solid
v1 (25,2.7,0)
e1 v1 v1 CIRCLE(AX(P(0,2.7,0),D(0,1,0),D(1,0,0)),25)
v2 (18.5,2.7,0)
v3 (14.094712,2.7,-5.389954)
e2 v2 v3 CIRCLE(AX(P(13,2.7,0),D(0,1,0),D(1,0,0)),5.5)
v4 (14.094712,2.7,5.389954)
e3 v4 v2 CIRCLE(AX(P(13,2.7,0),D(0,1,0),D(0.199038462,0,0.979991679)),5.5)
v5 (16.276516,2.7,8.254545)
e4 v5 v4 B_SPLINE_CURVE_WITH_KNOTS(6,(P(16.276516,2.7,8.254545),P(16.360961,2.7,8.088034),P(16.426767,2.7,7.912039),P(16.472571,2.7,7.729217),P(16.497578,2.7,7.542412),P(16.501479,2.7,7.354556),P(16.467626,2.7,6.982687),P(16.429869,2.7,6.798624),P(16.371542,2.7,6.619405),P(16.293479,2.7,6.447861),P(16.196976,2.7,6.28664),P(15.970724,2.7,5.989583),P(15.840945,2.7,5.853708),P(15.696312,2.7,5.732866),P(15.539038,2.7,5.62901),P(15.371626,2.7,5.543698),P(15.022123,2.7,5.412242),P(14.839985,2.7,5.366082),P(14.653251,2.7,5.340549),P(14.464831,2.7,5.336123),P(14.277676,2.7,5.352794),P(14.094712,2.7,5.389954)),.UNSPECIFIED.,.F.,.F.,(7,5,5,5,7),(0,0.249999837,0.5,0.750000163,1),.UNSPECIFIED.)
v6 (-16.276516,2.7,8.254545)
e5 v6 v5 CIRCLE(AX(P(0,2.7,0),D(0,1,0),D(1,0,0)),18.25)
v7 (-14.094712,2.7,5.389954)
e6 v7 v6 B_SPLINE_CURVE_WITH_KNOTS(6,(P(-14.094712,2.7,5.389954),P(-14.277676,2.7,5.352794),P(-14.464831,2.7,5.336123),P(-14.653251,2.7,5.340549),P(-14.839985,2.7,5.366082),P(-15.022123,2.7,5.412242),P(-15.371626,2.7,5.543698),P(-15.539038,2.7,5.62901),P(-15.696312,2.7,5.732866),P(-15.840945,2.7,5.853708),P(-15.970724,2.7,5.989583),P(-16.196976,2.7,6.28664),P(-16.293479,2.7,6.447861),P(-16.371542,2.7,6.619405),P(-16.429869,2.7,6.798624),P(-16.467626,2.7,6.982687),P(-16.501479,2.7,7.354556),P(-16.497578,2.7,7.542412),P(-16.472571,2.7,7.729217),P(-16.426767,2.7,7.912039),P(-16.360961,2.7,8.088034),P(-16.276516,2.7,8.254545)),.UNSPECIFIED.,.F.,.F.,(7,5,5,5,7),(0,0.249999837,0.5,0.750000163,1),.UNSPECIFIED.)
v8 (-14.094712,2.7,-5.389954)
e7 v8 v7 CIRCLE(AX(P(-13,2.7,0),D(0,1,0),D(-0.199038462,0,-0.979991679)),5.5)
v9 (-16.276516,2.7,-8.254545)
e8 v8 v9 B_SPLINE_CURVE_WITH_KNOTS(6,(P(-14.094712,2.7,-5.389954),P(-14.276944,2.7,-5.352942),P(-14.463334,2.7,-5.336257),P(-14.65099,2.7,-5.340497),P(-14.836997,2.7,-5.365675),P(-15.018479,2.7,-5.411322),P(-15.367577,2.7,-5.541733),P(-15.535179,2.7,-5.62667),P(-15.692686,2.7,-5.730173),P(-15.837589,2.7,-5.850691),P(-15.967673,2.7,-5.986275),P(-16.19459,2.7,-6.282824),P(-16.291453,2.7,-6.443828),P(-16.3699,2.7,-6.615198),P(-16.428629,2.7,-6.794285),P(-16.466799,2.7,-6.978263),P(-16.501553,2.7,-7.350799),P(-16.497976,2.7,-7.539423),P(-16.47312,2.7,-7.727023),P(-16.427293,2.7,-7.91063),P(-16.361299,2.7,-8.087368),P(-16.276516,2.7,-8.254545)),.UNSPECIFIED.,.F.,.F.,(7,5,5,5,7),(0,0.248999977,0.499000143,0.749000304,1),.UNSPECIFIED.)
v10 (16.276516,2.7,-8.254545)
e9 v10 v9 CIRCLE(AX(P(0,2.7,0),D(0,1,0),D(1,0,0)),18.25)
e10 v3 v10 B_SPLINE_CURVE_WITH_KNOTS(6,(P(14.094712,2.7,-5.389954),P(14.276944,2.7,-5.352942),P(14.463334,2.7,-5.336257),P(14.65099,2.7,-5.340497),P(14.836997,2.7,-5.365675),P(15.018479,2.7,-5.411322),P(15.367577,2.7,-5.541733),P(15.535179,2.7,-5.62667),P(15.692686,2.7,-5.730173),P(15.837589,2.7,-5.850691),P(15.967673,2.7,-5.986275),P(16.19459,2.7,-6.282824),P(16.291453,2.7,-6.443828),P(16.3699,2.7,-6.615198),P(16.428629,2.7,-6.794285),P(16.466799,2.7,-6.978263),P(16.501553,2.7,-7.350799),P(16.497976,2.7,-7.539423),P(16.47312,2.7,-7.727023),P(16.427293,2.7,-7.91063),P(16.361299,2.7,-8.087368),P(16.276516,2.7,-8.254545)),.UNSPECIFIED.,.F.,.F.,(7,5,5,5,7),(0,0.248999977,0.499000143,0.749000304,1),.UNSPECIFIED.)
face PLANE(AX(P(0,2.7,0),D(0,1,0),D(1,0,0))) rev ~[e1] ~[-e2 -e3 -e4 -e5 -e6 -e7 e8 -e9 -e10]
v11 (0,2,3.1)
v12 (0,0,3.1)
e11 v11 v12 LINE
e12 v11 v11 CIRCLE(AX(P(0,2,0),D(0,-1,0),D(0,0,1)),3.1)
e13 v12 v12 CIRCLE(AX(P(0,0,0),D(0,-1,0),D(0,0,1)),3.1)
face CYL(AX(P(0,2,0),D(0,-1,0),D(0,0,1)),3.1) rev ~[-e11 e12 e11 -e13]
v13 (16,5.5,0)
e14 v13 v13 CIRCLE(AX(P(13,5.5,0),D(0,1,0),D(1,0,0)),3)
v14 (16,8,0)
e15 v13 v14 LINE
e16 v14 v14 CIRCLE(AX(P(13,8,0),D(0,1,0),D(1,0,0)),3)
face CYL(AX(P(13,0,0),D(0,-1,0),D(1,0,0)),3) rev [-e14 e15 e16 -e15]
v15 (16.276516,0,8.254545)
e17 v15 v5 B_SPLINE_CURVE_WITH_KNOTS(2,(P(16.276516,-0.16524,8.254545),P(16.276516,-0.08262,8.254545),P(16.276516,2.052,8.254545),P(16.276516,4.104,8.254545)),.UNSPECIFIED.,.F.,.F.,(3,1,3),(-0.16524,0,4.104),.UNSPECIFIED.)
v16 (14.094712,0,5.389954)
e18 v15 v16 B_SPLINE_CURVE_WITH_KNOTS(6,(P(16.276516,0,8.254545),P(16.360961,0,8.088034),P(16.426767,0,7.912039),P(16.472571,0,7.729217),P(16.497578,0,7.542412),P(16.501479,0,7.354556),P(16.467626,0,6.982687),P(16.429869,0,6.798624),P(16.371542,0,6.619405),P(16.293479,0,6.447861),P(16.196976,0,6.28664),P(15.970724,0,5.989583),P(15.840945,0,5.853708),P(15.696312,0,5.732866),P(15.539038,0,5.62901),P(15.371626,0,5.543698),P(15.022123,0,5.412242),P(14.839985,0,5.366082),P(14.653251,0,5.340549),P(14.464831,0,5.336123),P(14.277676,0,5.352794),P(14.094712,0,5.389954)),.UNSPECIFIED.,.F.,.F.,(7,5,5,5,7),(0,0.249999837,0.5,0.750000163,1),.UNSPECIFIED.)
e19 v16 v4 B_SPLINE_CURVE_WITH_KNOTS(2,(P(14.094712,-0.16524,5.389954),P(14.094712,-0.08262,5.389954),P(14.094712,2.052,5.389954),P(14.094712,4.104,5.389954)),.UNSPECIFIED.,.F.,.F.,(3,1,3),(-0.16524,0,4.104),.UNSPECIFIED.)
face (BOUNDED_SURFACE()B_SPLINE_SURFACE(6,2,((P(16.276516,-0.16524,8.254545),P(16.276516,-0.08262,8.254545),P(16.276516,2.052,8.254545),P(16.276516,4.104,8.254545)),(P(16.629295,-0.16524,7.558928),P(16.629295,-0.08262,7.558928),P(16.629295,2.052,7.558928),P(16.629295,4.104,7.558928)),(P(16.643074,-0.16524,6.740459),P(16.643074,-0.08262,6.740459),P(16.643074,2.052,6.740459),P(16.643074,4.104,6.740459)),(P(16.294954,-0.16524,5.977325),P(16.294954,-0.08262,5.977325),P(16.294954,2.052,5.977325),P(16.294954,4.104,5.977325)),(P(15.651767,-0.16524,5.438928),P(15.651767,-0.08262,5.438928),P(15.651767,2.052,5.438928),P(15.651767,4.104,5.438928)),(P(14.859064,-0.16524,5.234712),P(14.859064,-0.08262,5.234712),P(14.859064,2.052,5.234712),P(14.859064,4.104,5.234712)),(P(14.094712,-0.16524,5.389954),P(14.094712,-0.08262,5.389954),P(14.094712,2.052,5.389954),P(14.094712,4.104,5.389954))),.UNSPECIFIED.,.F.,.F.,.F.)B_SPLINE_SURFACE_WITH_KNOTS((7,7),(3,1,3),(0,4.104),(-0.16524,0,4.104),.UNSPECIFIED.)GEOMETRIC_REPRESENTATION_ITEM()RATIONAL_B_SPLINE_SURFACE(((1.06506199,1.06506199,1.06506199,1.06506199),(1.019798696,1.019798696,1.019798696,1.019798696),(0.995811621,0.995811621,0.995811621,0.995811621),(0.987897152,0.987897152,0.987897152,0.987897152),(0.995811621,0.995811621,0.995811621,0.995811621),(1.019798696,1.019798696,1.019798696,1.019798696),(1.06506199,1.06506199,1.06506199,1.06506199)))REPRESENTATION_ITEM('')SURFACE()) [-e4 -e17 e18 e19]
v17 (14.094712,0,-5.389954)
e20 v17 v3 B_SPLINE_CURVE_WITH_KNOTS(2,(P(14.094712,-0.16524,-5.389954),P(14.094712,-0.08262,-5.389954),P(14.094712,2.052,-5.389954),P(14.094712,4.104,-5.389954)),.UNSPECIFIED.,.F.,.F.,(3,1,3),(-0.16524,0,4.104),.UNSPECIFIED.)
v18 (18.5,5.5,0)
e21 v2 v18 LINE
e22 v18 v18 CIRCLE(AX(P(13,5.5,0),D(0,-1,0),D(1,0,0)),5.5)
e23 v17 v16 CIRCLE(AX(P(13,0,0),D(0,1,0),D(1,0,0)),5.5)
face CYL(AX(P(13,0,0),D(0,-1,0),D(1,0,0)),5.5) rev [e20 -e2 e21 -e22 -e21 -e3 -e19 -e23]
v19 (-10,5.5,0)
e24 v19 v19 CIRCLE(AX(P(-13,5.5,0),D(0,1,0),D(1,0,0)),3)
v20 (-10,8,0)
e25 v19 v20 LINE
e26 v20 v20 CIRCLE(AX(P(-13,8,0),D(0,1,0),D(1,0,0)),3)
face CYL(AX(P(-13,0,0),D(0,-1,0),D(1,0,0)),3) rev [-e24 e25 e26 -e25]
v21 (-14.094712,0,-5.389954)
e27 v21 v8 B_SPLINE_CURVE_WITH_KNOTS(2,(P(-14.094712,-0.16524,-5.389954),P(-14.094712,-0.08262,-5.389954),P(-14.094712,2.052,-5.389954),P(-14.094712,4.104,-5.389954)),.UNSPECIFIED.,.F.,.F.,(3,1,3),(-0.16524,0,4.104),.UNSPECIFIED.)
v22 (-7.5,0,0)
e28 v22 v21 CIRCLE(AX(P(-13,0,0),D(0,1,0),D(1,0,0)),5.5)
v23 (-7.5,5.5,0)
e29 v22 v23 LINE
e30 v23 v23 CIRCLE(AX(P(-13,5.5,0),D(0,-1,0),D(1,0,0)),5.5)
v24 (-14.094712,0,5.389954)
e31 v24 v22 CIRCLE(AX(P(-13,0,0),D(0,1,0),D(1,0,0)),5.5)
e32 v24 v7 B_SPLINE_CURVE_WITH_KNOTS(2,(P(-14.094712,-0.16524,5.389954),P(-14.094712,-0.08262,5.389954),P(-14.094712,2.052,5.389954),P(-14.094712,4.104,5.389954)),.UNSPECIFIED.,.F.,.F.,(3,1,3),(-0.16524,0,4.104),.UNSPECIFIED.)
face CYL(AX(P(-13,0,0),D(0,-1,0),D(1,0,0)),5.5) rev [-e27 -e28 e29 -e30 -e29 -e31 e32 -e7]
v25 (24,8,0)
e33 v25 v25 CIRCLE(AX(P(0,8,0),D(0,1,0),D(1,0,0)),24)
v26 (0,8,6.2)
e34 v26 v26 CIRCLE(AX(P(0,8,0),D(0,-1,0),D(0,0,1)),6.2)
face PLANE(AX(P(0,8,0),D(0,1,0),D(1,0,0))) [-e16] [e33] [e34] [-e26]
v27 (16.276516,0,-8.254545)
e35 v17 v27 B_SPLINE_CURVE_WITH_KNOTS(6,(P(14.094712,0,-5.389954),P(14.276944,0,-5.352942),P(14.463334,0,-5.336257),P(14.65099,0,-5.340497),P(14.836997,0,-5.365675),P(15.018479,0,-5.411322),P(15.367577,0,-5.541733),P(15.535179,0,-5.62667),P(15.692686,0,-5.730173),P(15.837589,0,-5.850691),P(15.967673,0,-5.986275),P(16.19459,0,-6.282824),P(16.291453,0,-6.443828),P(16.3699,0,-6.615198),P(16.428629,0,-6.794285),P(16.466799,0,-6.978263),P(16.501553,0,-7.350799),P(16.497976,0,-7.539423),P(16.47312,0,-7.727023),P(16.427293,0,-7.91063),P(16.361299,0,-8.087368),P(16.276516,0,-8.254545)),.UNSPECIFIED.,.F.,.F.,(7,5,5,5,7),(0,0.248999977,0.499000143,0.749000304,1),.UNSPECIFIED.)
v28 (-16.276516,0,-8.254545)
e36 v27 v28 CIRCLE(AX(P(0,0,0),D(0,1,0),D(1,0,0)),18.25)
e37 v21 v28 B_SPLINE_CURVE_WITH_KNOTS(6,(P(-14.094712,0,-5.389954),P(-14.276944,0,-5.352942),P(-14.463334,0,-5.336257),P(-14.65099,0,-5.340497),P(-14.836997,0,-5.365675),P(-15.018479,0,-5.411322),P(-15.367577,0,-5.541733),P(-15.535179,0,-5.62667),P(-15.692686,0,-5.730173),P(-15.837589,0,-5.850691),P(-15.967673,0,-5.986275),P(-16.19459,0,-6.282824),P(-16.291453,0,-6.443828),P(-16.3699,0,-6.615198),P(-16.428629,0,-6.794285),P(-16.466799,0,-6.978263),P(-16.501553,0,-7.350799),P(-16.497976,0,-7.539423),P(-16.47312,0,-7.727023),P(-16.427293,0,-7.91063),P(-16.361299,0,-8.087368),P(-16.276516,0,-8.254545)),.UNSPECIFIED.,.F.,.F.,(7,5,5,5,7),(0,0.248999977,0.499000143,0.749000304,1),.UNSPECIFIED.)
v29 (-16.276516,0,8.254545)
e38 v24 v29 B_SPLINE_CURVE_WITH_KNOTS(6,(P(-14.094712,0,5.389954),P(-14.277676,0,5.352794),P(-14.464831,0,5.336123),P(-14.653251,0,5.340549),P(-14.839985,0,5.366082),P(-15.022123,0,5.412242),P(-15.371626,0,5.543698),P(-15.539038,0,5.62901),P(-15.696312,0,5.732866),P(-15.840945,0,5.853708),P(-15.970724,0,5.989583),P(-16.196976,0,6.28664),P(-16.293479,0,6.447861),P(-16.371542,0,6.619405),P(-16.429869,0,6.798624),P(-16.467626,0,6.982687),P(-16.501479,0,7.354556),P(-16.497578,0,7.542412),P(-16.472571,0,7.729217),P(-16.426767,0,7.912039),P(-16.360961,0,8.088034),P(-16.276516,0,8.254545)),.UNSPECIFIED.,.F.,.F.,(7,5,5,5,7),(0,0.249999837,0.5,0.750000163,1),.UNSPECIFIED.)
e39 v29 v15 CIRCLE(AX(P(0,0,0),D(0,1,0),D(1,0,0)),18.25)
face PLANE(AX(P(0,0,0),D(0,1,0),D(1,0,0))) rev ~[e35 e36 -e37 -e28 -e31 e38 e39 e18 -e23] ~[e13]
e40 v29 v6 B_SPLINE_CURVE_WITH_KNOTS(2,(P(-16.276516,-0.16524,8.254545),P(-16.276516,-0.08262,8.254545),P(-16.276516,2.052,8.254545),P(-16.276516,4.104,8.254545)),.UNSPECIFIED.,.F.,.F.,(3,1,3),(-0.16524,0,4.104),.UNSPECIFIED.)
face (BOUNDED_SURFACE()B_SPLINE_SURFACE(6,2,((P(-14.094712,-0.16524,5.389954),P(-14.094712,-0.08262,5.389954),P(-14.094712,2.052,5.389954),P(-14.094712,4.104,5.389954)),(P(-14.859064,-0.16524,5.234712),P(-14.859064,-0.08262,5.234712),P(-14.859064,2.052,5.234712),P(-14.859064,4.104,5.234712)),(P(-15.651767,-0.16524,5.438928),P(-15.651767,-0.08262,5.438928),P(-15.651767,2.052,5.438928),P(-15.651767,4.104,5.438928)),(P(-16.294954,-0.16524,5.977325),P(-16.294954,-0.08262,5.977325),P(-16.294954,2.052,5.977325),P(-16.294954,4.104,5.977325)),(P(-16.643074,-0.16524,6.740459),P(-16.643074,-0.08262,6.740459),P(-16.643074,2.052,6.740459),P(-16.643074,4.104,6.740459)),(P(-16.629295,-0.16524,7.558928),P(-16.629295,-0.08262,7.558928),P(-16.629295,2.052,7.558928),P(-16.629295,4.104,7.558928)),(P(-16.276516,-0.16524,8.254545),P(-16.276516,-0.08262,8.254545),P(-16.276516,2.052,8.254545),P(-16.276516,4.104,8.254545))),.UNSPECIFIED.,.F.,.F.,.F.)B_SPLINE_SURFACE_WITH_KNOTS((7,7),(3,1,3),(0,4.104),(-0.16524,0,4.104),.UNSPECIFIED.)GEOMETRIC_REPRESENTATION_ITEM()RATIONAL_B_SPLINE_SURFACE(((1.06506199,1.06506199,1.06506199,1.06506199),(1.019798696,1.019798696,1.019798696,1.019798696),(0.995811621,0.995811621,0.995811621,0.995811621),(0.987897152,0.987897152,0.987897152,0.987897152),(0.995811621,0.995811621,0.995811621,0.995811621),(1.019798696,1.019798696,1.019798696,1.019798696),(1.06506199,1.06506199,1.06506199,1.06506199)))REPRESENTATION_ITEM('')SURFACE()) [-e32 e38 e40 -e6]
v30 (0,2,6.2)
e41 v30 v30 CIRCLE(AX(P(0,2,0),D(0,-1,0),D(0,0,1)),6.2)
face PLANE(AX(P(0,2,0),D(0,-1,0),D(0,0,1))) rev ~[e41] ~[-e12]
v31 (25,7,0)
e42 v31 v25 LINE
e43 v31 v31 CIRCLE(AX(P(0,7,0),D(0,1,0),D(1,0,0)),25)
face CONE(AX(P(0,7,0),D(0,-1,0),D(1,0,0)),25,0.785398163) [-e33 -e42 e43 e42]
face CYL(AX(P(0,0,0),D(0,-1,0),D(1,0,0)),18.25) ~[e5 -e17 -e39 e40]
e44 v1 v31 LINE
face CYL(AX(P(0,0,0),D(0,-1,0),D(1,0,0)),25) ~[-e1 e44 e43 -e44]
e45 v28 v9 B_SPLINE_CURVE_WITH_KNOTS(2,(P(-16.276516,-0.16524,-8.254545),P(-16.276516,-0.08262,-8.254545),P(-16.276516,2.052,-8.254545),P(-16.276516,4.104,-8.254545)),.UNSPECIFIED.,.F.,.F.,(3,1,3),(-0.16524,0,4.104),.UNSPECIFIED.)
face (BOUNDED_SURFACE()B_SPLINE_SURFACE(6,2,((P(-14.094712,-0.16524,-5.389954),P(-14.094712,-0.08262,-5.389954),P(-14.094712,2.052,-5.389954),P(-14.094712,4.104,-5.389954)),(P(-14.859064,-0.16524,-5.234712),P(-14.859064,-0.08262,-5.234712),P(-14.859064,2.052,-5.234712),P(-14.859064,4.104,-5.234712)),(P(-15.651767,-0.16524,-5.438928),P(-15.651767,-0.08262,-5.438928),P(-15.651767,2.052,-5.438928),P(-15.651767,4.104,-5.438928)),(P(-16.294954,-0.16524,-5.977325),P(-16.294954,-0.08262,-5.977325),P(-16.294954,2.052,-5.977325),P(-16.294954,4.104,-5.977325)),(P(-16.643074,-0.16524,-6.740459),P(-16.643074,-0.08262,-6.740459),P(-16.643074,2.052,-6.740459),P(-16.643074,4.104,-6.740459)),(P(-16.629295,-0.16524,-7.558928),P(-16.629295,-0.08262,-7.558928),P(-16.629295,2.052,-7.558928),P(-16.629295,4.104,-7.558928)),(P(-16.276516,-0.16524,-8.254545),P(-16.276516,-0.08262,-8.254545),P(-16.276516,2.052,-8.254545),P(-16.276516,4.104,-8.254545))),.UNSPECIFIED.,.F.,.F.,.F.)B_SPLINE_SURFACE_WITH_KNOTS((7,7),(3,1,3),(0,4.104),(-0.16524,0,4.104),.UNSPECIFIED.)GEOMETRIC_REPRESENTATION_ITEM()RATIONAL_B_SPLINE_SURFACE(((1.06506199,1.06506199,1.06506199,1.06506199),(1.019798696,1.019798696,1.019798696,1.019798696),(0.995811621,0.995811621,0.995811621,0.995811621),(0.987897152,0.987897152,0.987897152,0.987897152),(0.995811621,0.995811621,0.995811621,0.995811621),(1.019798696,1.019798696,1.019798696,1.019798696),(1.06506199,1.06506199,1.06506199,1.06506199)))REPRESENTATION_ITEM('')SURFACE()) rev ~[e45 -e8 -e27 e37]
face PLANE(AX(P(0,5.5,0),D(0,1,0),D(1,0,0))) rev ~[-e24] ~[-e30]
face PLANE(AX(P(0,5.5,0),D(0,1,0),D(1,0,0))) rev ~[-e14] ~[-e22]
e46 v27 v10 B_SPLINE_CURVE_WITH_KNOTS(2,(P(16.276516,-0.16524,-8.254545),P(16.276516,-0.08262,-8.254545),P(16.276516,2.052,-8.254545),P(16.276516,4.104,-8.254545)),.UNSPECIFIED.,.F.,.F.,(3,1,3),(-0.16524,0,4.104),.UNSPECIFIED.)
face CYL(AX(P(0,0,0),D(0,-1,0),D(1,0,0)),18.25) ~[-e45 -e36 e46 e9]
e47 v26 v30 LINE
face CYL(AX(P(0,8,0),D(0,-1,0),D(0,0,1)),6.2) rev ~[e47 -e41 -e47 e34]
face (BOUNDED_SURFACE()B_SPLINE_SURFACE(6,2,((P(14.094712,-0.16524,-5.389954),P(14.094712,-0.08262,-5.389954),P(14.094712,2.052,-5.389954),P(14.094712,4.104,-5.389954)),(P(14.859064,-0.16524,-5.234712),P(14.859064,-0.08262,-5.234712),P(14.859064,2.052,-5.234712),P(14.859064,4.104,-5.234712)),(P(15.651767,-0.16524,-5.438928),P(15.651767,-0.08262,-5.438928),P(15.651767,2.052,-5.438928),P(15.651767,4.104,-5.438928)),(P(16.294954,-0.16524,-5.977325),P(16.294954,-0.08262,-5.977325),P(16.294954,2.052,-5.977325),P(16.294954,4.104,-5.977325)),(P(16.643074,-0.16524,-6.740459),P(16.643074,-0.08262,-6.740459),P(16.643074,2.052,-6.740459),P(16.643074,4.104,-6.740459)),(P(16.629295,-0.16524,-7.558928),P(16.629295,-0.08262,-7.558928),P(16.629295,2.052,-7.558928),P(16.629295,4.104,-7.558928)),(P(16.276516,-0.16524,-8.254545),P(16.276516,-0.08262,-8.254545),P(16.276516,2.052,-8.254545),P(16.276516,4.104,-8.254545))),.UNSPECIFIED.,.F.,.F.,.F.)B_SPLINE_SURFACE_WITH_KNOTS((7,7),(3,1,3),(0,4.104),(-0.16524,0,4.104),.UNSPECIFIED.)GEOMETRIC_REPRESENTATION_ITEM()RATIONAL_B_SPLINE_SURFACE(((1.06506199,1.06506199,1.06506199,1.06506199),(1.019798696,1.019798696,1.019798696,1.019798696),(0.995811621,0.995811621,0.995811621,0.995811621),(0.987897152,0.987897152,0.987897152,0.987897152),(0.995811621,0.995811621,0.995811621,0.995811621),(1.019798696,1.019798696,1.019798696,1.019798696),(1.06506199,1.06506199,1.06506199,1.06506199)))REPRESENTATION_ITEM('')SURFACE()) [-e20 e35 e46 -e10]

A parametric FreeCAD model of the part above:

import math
import FreeCAD as App
import Part
import Sketcher
Q = App.Units.Quantity


def edges_at(feature, points):
    """Names of the edges that pass closest to the given points."""
    edges = feature.Shape.Edges
    near = lambda p: min(range(len(edges)), key=lambda i: edges[i].distToShape(Part.Vertex(*p))[0])
    return sorted({f"Edge{near(p) + 1}" for p in points})

doc = App.newDocument("Part")
body = doc.addObject("PartDesign::Body", "Body")

sketch1 = doc.addObject("Sketcher::SketchObject", "Sketch")
body.addObject(sketch1)
sketch1.AttachmentSupport = (doc.XZ_Plane, [""])
sketch1.MapMode = "FlatFace"
sketch1.addGeometry([
    Part.Circle(App.Vector(0, 0, 0), App.Vector(0, 0, 1), 25),
    Part.Circle(App.Vector(-13, 0, 0), App.Vector(0, 0, 1), 3),
    Part.Circle(App.Vector(13, 0, 0), App.Vector(0, 0, 1), 3),
], False)
sketch1.addConstraint([
    Sketcher.Constraint("Coincident", 0, 3, -1, 1),
    Sketcher.Constraint("Equal", 1, 2),
    Sketcher.Constraint("Symmetric", 1, 3, 2, 3, -1, 1),
    Sketcher.Constraint("PointOnObject", 1, 3, -1),
    Sketcher.Constraint("Diameter", 0, Q("50 mm")),
    Sketcher.Constraint("Diameter", 1, Q("6 mm")),
    Sketcher.Constraint("DistanceX", 1, 3, -1, 1, Q("13 mm")),
])
pad1 = doc.addObject("PartDesign::Pad", "Pad")
body.addObject(pad1)
pad1.Profile = sketch1
pad1.Length = 8
pad1.Reversed = True

sketch2 = doc.addObject("Sketcher::SketchObject", "Sketch001")
body.addObject(sketch2)
sketch2.AttachmentSupport = (doc.XZ_Plane, [""])
sketch2.MapMode = "FlatFace"
sketch2.AttachmentOffset = App.Placement(App.Vector(0, 0, -8), App.Rotation())
sketch2.addGeometry(Part.Circle(App.Vector(0, 0, 0), App.Vector(0, 0, 1), 3.1), False)
sketch2.addConstraint([
    Sketcher.Constraint("Coincident", 0, 3, -1, 1),
    Sketcher.Constraint("Diameter", 0, Q("6.2 mm")),
])
doc.recompute()
hole = doc.addObject("PartDesign::Hole", "Hole")
body.addObject(hole)
hole.Profile = sketch2
hole.ThreadType = "None"
hole.Diameter = 6.2
hole.DepthType = "Dimension"
hole.Depth = 9
hole.DrillPoint = "Angled"
hole.DrillPointAngle = 118
hole.HoleCutType = "Counterbore"
hole.HoleCutDiameter = 12.4
hole.HoleCutDepth = 6
hole.Reversed = True

sketch3 = doc.addObject("Sketcher::SketchObject", "Sketch002")
body.addObject(sketch3)
sketch3.AttachmentSupport = (doc.XZ_Plane, [""])
sketch3.MapMode = "FlatFace"
sketch3.addGeometry([
    Part.Circle(App.Vector(-13, 0, 0), App.Vector(0, 0, 1), 5.5),
    Part.Circle(App.Vector(-13, 0, 0), App.Vector(0, 0, 1), 3),
    Part.Circle(App.Vector(13, 0, 0), App.Vector(0, 0, 1), 5.5),
    Part.Circle(App.Vector(13, 0, 0), App.Vector(0, 0, 1), 3),
], False)
sketch3.addConstraint([
    Sketcher.Constraint("Coincident", 1, 3, 0, 3),
    Sketcher.Constraint("Coincident", 3, 3, 2, 3),
    Sketcher.Constraint("Equal", 0, 2),
    Sketcher.Constraint("Equal", 1, 3),
    Sketcher.Constraint("Symmetric", 0, 3, 2, 3, -1, 1),
    Sketcher.Constraint("PointOnObject", 0, 3, -1),
    Sketcher.Constraint("Diameter", 0, Q("11 mm")),
    Sketcher.Constraint("Diameter", 1, Q("6 mm")),
    Sketcher.Constraint("DistanceX", 0, 3, -1, 1, Q("13 mm")),
])
pocket1 = doc.addObject("PartDesign::Pocket", "Pocket")
body.addObject(pocket1)
pocket1.Profile = sketch3
pocket1.Length = 5.5

sketch4 = doc.addObject("Sketcher::SketchObject", "Sketch003")
body.addObject(sketch4)
sketch4.AttachmentSupport = (doc.XZ_Plane, [""])
sketch4.MapMode = "FlatFace"
sketch4.addGeometry([
    Part.Circle(App.Vector(0, 0, 0), App.Vector(0, 0, 1), 25),
    Part.ArcOfCircle(Part.Circle(App.Vector(-13, 0, 0), App.Vector(0, 0, 1), 5.5), math.radians(159), math.radians(201)),
    Part.ArcOfCircle(Part.Circle(App.Vector(0, 0, 0), App.Vector(0, 0, 1), 18.2), math.radians(-174), math.radians(-6)),
    Part.ArcOfCircle(Part.Circle(App.Vector(13, 0, 0), App.Vector(0, 0, 1), 5.5), math.radians(-21), math.radians(21)),
    Part.ArcOfCircle(Part.Circle(App.Vector(0, 0, 0), App.Vector(0, 0, 1), 18.2), math.radians(6), math.radians(174)),
], False)
sketch4.addConstraint([
    Sketcher.Constraint("Coincident", 1, 2, 2, 1),
    Sketcher.Constraint("Coincident", 2, 2, 3, 1),
    Sketcher.Constraint("Coincident", 3, 2, 4, 1),
    Sketcher.Constraint("Coincident", 4, 2, 1, 1),
    Sketcher.Constraint("Coincident", 0, 3, -1, 1),
    Sketcher.Constraint("Coincident", 2, 3, -1, 1),
    Sketcher.Constraint("Coincident", 4, 3, -1, 1),
    Sketcher.Constraint("Equal", 1, 3),
    Sketcher.Constraint("Equal", 2, 4),
    Sketcher.Constraint("Symmetric", 1, 3, 3, 3, -1, 1),
    Sketcher.Constraint("PointOnObject", 1, 3, -1),
    Sketcher.Constraint("Diameter", 0, Q("50 mm")),
    Sketcher.Constraint("Radius", 1, Q("5.5 mm")),
    Sketcher.Constraint("Radius", 2, Q("18.25 mm")),
    Sketcher.Constraint("DistanceX", 1, 3, -1, 1, Q("13 mm")),
])
pocket2 = doc.addObject("PartDesign::Pocket", "Pocket001")
body.addObject(pocket2)
pocket2.Profile = sketch4
pocket2.Length = 2.7
doc.recompute()

chamfer = doc.addObject("PartDesign::Chamfer", "Chamfer")
body.addObject(chamfer)
chamfer.Base = (pocket2, edges_at(pocket2, [(-23.308, 8, 9.04)]))
chamfer.Size = 1
doc.recompute()

fillet = doc.addObject("PartDesign::Fillet", "Fillet")
body.addObject(fillet)
fillet.Base = (chamfer, edges_at(chamfer, [
    (-18.147, 1.35, 1.94),
    (-18.147, 1.35, -1.94),
    (18.147, 1.35, 1.94),
    (18.147, 1.35, -1.94),
]))
fillet.Radius = 2

doc.recompute()
